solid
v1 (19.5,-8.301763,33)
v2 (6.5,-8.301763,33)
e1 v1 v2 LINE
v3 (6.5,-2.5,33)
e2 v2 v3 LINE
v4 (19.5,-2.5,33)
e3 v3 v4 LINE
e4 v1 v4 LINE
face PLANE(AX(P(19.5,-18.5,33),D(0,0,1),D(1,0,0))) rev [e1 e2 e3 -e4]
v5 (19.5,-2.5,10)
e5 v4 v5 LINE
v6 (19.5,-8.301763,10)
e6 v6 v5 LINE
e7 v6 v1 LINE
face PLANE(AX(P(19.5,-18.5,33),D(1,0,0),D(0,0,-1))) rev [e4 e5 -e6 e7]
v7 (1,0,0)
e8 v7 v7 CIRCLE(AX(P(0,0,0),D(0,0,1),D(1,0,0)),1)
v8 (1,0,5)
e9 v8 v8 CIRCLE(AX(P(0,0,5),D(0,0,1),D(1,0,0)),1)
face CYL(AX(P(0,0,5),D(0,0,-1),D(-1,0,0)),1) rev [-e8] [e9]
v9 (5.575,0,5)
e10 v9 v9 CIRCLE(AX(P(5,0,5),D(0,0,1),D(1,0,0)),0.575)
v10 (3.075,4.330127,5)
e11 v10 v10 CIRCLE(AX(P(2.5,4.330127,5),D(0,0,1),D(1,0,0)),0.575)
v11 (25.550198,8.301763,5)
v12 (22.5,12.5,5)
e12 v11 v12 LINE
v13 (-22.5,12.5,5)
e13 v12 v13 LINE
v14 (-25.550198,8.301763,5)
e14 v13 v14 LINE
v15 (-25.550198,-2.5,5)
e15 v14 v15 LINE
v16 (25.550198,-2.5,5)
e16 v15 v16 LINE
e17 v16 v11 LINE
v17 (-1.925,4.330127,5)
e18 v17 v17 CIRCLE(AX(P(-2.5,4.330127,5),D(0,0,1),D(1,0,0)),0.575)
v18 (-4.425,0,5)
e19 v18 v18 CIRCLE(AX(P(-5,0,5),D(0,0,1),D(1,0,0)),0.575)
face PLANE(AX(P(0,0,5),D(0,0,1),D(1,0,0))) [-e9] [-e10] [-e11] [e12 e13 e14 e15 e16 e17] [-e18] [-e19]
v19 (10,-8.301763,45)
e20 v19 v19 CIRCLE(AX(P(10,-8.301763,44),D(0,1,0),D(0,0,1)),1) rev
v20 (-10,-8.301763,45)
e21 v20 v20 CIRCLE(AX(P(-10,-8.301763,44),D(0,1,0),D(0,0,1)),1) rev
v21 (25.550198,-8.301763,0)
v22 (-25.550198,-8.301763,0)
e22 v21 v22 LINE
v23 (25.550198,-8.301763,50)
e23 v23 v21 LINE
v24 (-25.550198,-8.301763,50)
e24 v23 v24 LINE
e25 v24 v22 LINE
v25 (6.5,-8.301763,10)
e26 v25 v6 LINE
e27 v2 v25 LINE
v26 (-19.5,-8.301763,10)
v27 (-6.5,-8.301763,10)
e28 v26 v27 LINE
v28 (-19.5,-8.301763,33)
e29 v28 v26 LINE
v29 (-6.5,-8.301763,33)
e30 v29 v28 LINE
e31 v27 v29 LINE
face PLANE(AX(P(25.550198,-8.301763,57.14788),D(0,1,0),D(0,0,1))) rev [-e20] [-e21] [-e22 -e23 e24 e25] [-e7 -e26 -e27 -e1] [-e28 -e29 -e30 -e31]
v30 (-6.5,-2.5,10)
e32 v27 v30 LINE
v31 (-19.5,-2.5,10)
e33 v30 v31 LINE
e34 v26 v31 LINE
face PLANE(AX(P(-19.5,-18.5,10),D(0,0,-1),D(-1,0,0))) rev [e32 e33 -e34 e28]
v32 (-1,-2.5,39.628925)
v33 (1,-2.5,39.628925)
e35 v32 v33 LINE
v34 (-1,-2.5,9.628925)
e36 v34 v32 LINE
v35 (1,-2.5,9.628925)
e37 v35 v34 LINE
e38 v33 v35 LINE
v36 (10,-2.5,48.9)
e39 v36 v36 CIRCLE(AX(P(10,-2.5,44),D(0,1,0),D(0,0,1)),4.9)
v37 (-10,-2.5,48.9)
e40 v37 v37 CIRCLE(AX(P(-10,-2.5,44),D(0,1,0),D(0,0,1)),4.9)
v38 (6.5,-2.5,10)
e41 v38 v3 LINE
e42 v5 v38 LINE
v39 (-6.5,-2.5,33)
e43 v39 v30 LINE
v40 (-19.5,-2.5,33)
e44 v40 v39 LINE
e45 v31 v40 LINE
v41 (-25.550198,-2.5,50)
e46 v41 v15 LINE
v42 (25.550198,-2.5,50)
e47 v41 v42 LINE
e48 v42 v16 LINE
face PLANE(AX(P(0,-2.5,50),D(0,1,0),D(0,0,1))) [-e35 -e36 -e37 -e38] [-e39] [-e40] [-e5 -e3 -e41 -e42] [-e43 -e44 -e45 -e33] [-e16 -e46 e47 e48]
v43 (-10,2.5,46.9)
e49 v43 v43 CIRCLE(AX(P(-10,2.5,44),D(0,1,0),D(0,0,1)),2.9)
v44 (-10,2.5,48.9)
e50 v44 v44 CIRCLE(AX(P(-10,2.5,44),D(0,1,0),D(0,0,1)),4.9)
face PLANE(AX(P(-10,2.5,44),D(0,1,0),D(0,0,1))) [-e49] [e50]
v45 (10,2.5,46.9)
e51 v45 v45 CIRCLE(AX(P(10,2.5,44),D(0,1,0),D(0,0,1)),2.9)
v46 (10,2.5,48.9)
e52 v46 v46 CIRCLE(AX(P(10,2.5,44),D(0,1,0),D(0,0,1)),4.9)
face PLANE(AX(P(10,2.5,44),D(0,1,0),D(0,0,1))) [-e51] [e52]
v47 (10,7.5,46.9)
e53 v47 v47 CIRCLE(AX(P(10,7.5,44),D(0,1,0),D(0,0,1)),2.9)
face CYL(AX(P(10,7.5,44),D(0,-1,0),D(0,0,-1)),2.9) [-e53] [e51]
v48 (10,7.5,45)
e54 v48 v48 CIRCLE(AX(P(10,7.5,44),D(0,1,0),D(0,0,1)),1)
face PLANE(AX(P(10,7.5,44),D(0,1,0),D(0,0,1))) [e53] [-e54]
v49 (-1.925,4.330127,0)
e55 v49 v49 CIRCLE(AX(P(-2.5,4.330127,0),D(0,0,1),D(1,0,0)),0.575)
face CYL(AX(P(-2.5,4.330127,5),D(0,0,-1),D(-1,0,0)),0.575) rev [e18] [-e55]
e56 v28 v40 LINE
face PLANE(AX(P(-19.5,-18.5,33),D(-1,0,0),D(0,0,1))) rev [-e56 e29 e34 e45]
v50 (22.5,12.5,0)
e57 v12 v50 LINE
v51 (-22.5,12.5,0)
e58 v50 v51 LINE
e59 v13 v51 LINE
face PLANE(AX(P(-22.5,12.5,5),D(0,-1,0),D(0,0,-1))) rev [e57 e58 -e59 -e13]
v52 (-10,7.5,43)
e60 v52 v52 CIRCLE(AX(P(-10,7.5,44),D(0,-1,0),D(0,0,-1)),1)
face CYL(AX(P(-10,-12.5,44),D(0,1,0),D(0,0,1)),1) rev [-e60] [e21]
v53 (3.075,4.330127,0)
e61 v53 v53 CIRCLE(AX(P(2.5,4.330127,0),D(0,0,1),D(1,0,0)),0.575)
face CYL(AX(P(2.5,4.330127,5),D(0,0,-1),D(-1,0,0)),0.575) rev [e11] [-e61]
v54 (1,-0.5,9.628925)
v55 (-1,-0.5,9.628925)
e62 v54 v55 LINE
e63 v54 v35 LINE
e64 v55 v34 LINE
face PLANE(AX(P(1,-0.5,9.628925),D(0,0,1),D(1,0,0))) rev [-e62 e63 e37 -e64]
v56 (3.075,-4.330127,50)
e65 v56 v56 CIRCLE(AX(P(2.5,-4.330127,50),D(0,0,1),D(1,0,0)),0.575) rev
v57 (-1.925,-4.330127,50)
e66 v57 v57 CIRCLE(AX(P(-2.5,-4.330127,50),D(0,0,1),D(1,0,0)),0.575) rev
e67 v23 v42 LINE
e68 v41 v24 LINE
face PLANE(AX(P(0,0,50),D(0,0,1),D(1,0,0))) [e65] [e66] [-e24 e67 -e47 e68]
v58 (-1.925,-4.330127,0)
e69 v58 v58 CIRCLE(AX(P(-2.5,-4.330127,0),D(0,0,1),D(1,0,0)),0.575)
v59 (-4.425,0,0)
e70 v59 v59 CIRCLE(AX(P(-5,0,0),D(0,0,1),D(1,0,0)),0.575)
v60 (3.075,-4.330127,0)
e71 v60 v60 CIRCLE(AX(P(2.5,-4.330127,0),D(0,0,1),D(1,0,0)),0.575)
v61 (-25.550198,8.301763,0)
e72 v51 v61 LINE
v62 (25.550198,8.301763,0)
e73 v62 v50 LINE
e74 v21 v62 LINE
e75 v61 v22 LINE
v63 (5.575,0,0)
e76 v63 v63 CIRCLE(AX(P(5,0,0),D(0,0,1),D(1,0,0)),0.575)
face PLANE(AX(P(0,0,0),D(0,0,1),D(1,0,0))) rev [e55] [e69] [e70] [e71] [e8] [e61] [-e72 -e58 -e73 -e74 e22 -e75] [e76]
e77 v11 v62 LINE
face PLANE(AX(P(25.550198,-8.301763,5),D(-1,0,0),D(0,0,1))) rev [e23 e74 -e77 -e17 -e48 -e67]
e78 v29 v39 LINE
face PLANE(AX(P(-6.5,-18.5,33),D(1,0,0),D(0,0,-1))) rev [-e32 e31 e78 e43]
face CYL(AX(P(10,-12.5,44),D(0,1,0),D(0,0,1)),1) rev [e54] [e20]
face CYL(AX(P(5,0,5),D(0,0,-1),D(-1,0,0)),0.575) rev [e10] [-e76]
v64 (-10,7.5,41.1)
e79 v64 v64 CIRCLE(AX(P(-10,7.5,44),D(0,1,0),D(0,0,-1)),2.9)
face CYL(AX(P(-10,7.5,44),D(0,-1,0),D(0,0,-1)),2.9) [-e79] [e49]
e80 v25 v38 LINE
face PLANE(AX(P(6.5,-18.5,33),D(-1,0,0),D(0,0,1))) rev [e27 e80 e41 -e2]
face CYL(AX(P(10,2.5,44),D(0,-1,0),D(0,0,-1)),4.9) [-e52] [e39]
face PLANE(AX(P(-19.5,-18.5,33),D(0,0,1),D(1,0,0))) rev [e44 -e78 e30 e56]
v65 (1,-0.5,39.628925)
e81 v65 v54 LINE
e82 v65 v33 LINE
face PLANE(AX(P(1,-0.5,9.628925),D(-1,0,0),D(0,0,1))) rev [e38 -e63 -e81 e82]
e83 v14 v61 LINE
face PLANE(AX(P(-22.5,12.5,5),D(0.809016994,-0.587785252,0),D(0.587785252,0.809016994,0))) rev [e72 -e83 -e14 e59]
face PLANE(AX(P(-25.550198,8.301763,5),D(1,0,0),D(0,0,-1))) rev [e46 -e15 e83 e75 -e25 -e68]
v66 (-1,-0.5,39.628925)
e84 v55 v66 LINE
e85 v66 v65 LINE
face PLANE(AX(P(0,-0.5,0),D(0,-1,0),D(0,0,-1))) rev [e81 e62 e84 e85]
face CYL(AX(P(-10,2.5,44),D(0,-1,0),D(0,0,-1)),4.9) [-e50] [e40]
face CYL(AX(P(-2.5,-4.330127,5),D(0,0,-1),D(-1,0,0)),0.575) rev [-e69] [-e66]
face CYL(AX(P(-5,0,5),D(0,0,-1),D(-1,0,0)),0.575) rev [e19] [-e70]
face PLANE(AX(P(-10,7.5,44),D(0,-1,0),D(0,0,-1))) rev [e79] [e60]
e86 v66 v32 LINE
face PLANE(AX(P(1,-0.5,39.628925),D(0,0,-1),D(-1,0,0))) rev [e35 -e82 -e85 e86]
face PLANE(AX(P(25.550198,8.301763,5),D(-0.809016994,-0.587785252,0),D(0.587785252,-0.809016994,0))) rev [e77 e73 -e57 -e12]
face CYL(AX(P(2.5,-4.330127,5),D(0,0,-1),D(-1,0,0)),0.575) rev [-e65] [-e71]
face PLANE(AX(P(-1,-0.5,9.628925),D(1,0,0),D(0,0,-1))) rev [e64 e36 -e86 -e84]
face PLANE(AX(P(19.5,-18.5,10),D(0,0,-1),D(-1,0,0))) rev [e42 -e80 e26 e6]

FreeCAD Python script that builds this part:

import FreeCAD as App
import Part
import Sketcher

V = App.Vector
Q = App.Units.Quantity

doc = App.newDocument("Part")
body = doc.addObject("PartDesign::Body", "Body")

# Sketch on XY plane
sketch1 = body.newObject("Sketcher::SketchObject", "Sketch")
sketch1.AttachmentSupport = (doc.getObject("XY_Plane"), [""])
sketch1.MapMode = "FlatFace"
sketch1.addGeometry(Part.LineSegment(V(22.5, 12.5, 0), V(-22.5, 12.5, 0)), False)
sketch1.addGeometry(Part.LineSegment(V(-22.5, 12.5, 0), V(-25.6, 8.3, 0)), False)
sketch1.addGeometry(Part.LineSegment(V(-25.6, 8.3, 0), V(-25.6, -8.3, 0)), False)
sketch1.addGeometry(Part.LineSegment(V(-25.6, -8.3, 0), V(-22.5, -12.5, 0)), False)
sketch1.addGeometry(Part.LineSegment(V(-22.5, -12.5, 0), V(22.5, -12.5, 0)), False)
sketch1.addGeometry(Part.LineSegment(V(22.5, -12.5, 0), V(25.6, -8.3, 0)), False)
sketch1.addGeometry(Part.LineSegment(V(25.6, -8.3, 0), V(25.6, 8.3, 0)), False)
sketch1.addGeometry(Part.LineSegment(V(25.6, 8.3, 0), V(22.5, 12.5, 0)), False)
sketch1.addGeometry(Part.Circle(V(2.5, -4.3, 0), V(0, 0, 1), 0.6), False)
sketch1.addGeometry(Part.Circle(V(-2.5, -4.3, 0), V(0, 0, 1), 0.6), False)
sketch1.addGeometry(Part.Circle(V(5, 0, 0), V(0, 0, 1), 0.6), False)
sketch1.addGeometry(Part.Circle(V(2.5, 4.3, 0), V(0, 0, 1), 0.6), False)
sketch1.addGeometry(Part.Circle(V(0, 0, 0), V(0, 0, 1), 1), False)
sketch1.addGeometry(Part.Circle(V(-5, 0, 0), V(0, 0, 1), 0.6), False)
sketch1.addGeometry(Part.Circle(V(-2.5, 4.3, 0), V(0, 0, 1), 0.6), False)
sketch1.addConstraint(Sketcher.Constraint("Coincident", 0, 2, 1, 1))
sketch1.addConstraint(Sketcher.Constraint("Coincident", 1, 2, 2, 1))
sketch1.addConstraint(Sketcher.Constraint("Coincident", 2, 2, 3, 1))
sketch1.addConstraint(Sketcher.Constraint("Coincident", 3, 2, 4, 1))
sketch1.addConstraint(Sketcher.Constraint("Coincident", 4, 2, 5, 1))
sketch1.addConstraint(Sketcher.Constraint("Coincident", 5, 2, 6, 1))
sketch1.addConstraint(Sketcher.Constraint("Coincident", 6, 2, 7, 1))
sketch1.addConstraint(Sketcher.Constraint("Coincident", 7, 2, 0, 1))
sketch1.addConstraint(Sketcher.Constraint("Horizontal", 0))
sketch1.addConstraint(Sketcher.Constraint("Vertical", 2))
sketch1.addConstraint(Sketcher.Constraint("Horizontal", 4))
sketch1.addConstraint(Sketcher.Constraint("Vertical", 6))
sketch1.addConstraint(Sketcher.Constraint("Coincident", 12, 3, -1, 1))
sketch1.addConstraint(Sketcher.Constraint("Equal", 8, 9))
sketch1.addConstraint(Sketcher.Constraint("Equal", 9, 10))
sketch1.addConstraint(Sketcher.Constraint("Equal", 10, 11))
sketch1.addConstraint(Sketcher.Constraint("Equal", 11, 13))
sketch1.addConstraint(Sketcher.Constraint("Equal", 13, 14))
sketch1.addConstraint(Sketcher.Constraint("Symmetric", 9, 3, 11, 3, -1, 1))
sketch1.addConstraint(Sketcher.Constraint("Symmetric", 10, 3, 13, 3, -1, 1))
sketch1.addConstraint(Sketcher.Constraint("Symmetric", 8, 3, 14, 3, -1, 1))
sketch1.addConstraint(Sketcher.Constraint("Symmetric", 0, 2, 4, 2, -1, 1))
sketch1.addConstraint(Sketcher.Constraint("Symmetric", 1, 2, 5, 2, -1, 1))
sketch1.addConstraint(Sketcher.Constraint("Symmetric", 8, 3, 9, 3, -2))
sketch1.addConstraint(Sketcher.Constraint("PointOnObject", 10, 3, -1))
sketch1.addConstraint(Sketcher.Constraint("Parallel", 3, 7))
sketch1.addConstraint(Sketcher.Constraint("Horizontal", 2, 2, 5, 2))
sketch1.addConstraint(Sketcher.Constraint("Horizontal", 1, 2, 6, 2))
sketch1.addConstraint(Sketcher.Constraint("Vertical", 0, 2, 3, 2))
sketch1.addConstraint(Sketcher.Constraint("Diameter", 12, Q("2 mm")))
sketch1.addConstraint(Sketcher.Constraint("Diameter", 8, Q("1.15 mm")))
sketch1.addConstraint(Sketcher.Constraint("DistanceX", 0, 2, 0, 1, Q("45 mm")))
sketch1.addConstraint(Sketcher.Constraint("Angle", 1, Q("-126 deg")))
sketch1.addConstraint(Sketcher.Constraint("DistanceX", -1, 1, 10, 3, Q("5 mm")))
sketch1.addConstraint(Sketcher.Constraint("DistanceX", 9, 3, 8, 3, Q("5 mm")))
sketch1.addConstraint(Sketcher.Constraint("DistanceY", 3, 2, 0, 2, Q("25 mm")))
sketch1.addConstraint(Sketcher.Constraint("DistanceX", 1, 2, -1, 1, Q("25.550198 mm")))
sketch1.addConstraint(Sketcher.Constraint("DistanceY", 9, 3, 1, 2, Q("12.63189 mm")))
pad1 = body.newObject("PartDesign::Pad", "Pad")
pad1.Profile = sketch1
pad1.Length = 5

# Sketch on XY plane
sketch2 = body.newObject("Sketcher::SketchObject", "Sketch001")
sketch2.AttachmentSupport = (doc.getObject("XY_Plane"), [""])
sketch2.MapMode = "FlatFace"
sketch2.AttachmentOffset = App.Placement(V(0, 0, 5), App.Rotation())
sketch2.addGeometry(Part.LineSegment(V(25.6, -2.5, 0), V(-25.6, -2.5, 0)), False)
sketch2.addGeometry(Part.LineSegment(V(-25.6, -2.5, 0), V(-25.6, -8.3, 0)), False)
sketch2.addGeometry(Part.LineSegment(V(-25.6, -8.3, 0), V(-22.5, -12.5, 0)), False)
sketch2.addGeometry(Part.LineSegment(V(-22.5, -12.5, 0), V(22.5, -12.5, 0)), False)
sketch2.addGeometry(Part.LineSegment(V(22.5, -12.5, 0), V(25.6, -8.3, 0)), False)
sketch2.addGeometry(Part.LineSegment(V(25.6, -8.3, 0), V(25.6, -2.5, 0)), False)
sketch2.addGeometry(Part.Circle(V(-2.5, -4.3, 0), V(0, 0, 1), 0.6), False)
sketch2.addGeometry(Part.Circle(V(2.5, -4.3, 0), V(0, 0, 1), 0.6), False)
sketch2.addConstraint(Sketcher.Constraint("Coincident", 0, 2, 1, 1))
sketch2.addConstraint(Sketcher.Constraint("Coincident", 1, 2, 2, 1))
sketch2.addConstraint(Sketcher.Constraint("Coincident", 2, 2, 3, 1))
sketch2.addConstraint(Sketcher.Constraint("Coincident", 3, 2, 4, 1))
sketch2.addConstraint(Sketcher.Constraint("Coincident", 4, 2, 5, 1))
sketch2.addConstraint(Sketcher.Constraint("Coincident", 5, 2, 0, 1))
sketch2.addConstraint(Sketcher.Constraint("Horizontal", 0))
sketch2.addConstraint(Sketcher.Constraint("Vertical", 1))
sketch2.addConstraint(Sketcher.Constraint("Horizontal", 3))
sketch2.addConstraint(Sketcher.Constraint("Vertical", 5))
sketch2.addConstraint(Sketcher.Constraint("Equal", 6, 7))
sketch2.addConstraint(Sketcher.Constraint("Symmetric", 6, 3, 7, 3, -2))
sketch2.addConstraint(Sketcher.Constraint("Symmetric", 1, 2, 4, 2, -2))
sketch2.addConstraint(Sketcher.Constraint("Equal", 2, 4))
sketch2.addConstraint(Sketcher.Constraint("Diameter", 6, Q("1.15 mm")))
sketch2.addConstraint(Sketcher.Constraint("DistanceX", 3, 1, 3, 2, Q("45 mm")))
sketch2.addConstraint(Sketcher.Constraint("Angle", 2, Q("-54 deg")))
sketch2.addConstraint(Sketcher.Constraint("DistanceX", 6, 3, 7, 3, Q("5 mm")))
sketch2.addConstraint(Sketcher.Constraint("DistanceY", 2, 2, 0, 2, Q("10 mm")))
sketch2.addConstraint(Sketcher.Constraint("DistanceY", 0, 2, -1, 1, Q("2.5 mm")))
sketch2.addConstraint(Sketcher.Constraint("DistanceX", 0, 2, -1, 1, Q("25.550198 mm")))
sketch2.addConstraint(Sketcher.Constraint("DistanceY", 6, 3, -1, 1, Q("4.330127 mm")))
pad2 = body.newObject("PartDesign::Pad", "Pad001")
pad2.Profile = sketch2
pad2.Length = 45

# Sketch on XZ plane
sketch3 = body.newObject("Sketcher::SketchObject", "Sketch002")
sketch3.AttachmentSupport = (doc.getObject("XZ_Plane"), [""])
sketch3.MapMode = "FlatFace"
sketch3.AttachmentOffset = App.Placement(V(0, 0, 2.5), App.Rotation())
sketch3.addGeometry(Part.LineSegment(V(-1, 9.6, 0), V(-1, 39.6, 0)), False)
sketch3.addGeometry(Part.LineSegment(V(-1, 39.6, 0), V(1, 39.6, 0)), False)
sketch3.addGeometry(Part.LineSegment(V(1, 39.6, 0), V(1, 9.6, 0)), False)
sketch3.addGeometry(Part.LineSegment(V(1, 9.6, 0), V(-1, 9.6, 0)), False)
sketch3.addConstraint(Sketcher.Constraint("Coincident", 0, 2, 1, 1))
sketch3.addConstraint(Sketcher.Constraint("Coincident", 1, 2, 2, 1))
sketch3.addConstraint(Sketcher.Constraint("Coincident", 2, 2, 3, 1))
sketch3.addConstraint(Sketcher.Constraint("Coincident", 3, 2, 0, 1))
sketch3.addConstraint(Sketcher.Constraint("Vertical", 0))
sketch3.addConstraint(Sketcher.Constraint("Horizontal", 1))
sketch3.addConstraint(Sketcher.Constraint("Vertical", 2))
sketch3.addConstraint(Sketcher.Constraint("Horizontal", 3))
sketch3.addConstraint(Sketcher.Constraint("DistanceX", 1, 1, 1, 2, Q("2 mm")))
sketch3.addConstraint(Sketcher.Constraint("DistanceY", 0, 1, 0, 2, Q("30 mm")))
sketch3.addConstraint(Sketcher.Constraint("DistanceX", 0, 2, -1, 1, Q("1 mm")))
sketch3.addConstraint(Sketcher.Constraint("DistanceY", -1, 1, 0, 2, Q("39.628925 mm")))
pad3 = body.newObject("PartDesign::Pad", "Pad002")
pad3.Profile = sketch3
pad3.Length = 2
pad3.Reversed = True

# Sketch on XZ plane
sketch4 = body.newObject("Sketcher::SketchObject", "Sketch003")
sketch4.AttachmentSupport = (doc.getObject("XZ_Plane"), [""])
sketch4.MapMode = "FlatFace"
sketch4.AttachmentOffset = App.Placement(V(0, 0, 2.5), App.Rotation())
sketch4.addGeometry(Part.LineSegment(V(6, 10, 0), V(6, 33, 0)), False)
sketch4.addGeometry(Part.LineSegment(V(6, 33, 0), V(20, 33, 0)), False)
sketch4.addGeometry(Part.LineSegment(V(20, 33, 0), V(20, 10, 0)), False)
sketch4.addGeometry(Part.LineSegment(V(20, 10, 0), V(6, 10, 0)), False)
sketch4.addGeometry(Part.LineSegment(V(-20, 10, 0), V(-20, 33, 0)), False)
sketch4.addGeometry(Part.LineSegment(V(-20, 33, 0), V(-6, 33, 0)), False)
sketch4.addGeometry(Part.LineSegment(V(-6, 33, 0), V(-6, 10, 0)), False)
sketch4.addGeometry(Part.LineSegment(V(-6, 10, 0), V(-20, 10, 0)), False)
sketch4.addConstraint(Sketcher.Constraint("Coincident", 0, 2, 1, 1))
sketch4.addConstraint(Sketcher.Constraint("Coincident", 1, 2, 2, 1))
sketch4.addConstraint(Sketcher.Constraint("Coincident", 2, 2, 3, 1))
sketch4.addConstraint(Sketcher.Constraint("Coincident", 3, 2, 0, 1))
sketch4.addConstraint(Sketcher.Constraint("Coincident", 4, 2, 5, 1))
sketch4.addConstraint(Sketcher.Constraint("Coincident", 5, 2, 6, 1))
sketch4.addConstraint(Sketcher.Constraint("Coincident", 6, 2, 7, 1))
sketch4.addConstraint(Sketcher.Constraint("Coincident", 7, 2, 4, 1))
sketch4.addConstraint(Sketcher.Constraint("Vertical", 0))
sketch4.addConstraint(Sketcher.Constraint("Horizontal", 1))
sketch4.addConstraint(Sketcher.Constraint("Vertical", 2))
sketch4.addConstraint(Sketcher.Constraint("Horizontal", 3))
sketch4.addConstraint(Sketcher.Constraint("Vertical", 4))
sketch4.addConstraint(Sketcher.Constraint("Horizontal", 5))
sketch4.addConstraint(Sketcher.Constraint("Vertical", 6))
sketch4.addConstraint(Sketcher.Constraint("Horizontal", 7))
sketch4.addConstraint(Sketcher.Constraint("Symmetric", 1, 2, 4, 2, -2))
sketch4.addConstraint(Sketcher.Constraint("Symmetric", 3, 2, 6, 2, -2))
sketch4.addConstraint(Sketcher.Constraint("DistanceX", 1, 1, 1, 2, Q("13 mm")))
sketch4.addConstraint(Sketcher.Constraint("DistanceY", 0, 1, 0, 2, Q("23 mm")))
sketch4.addConstraint(Sketcher.Constraint("DistanceY", -1, 1, 0, 2, Q("33 mm")))
sketch4.addConstraint(Sketcher.Constraint("DistanceX", 4, 2, 0, 2, Q("26 mm")))
pocket1 = body.newObject("PartDesign::Pocket", "Pocket")
pocket1.Profile = sketch4
pocket1.Length = 16
pocket1.Reversed = True

# Sketch on XZ plane
sketch5 = body.newObject("Sketcher::SketchObject", "Sketch004")
sketch5.AttachmentSupport = (doc.getObject("XZ_Plane"), [""])
sketch5.MapMode = "FlatFace"
sketch5.AttachmentOffset = App.Placement(V(0, 0, 2.5), App.Rotation())
sketch5.addGeometry(Part.Circle(V(10, 44, 0), V(0, 0, 1), 2.9), False)
sketch5.addGeometry(Part.Circle(V(-10, 44, 0), V(0, 0, 1), 2.9), False)
sketch5.addConstraint(Sketcher.Constraint("Equal", 0, 1))
sketch5.addConstraint(Sketcher.Constraint("Symmetric", 0, 3, 1, 3, -2))
sketch5.addConstraint(Sketcher.Constraint("Diameter", 0, Q("5.8 mm")))
sketch5.addConstraint(Sketcher.Constraint("DistanceX", -1, 1, 0, 3, Q("10 mm")))
sketch5.addConstraint(Sketcher.Constraint("DistanceY", -1, 1, 0, 3, Q("44 mm")))
pad4 = body.newObject("PartDesign::Pad", "Pad003")
pad4.Profile = sketch5
pad4.Length = 10
pad4.Reversed = True

# Sketch on XZ plane
sketch6 = body.newObject("Sketcher::SketchObject", "Sketch005")
sketch6.AttachmentSupport = (doc.getObject("XZ_Plane"), [""])
sketch6.MapMode = "FlatFace"
sketch6.AttachmentOffset = App.Placement(V(0, 0, -7.5), App.Rotation())
sketch6.addGeometry(Part.Circle(V(10, 44, 0), V(0, 0, 1), 1), False)
sketch6.addGeometry(Part.Circle(V(-10, 44, 0), V(0, 0, 1), 1), False)
sketch6.addConstraint(Sketcher.Constraint("Equal", 0, 1))
sketch6.addConstraint(Sketcher.Constraint("Symmetric", 0, 3, 1, 3, -2))
sketch6.addConstraint(Sketcher.Constraint("Diameter", 0, Q("2 mm")))
sketch6.addConstraint(Sketcher.Constraint("DistanceX", -1, 1, 0, 3, Q("10 mm")))
sketch6.addConstraint(Sketcher.Constraint("DistanceY", -1, 1, 0, 3, Q("44 mm")))
pocket2 = body.newObject("PartDesign::Pocket", "Pocket001")
pocket2.Profile = sketch6
pocket2.Type = "ThroughAll"
pocket2.Midplane = True

# Sketch on XZ plane
sketch7 = body.newObject("Sketcher::SketchObject", "Sketch006")
sketch7.AttachmentSupport = (doc.getObject("XZ_Plane"), [""])
sketch7.MapMode = "FlatFace"
sketch7.AttachmentOffset = App.Placement(V(0, 0, 2.5), App.Rotation())
sketch7.addGeometry(Part.Circle(V(-10, 44, 0), V(0, 0, 1), 4.9), False)
sketch7.addGeometry(Part.Circle(V(-10, 44, 0), V(0, 0, 1), 2.9), False)
sketch7.addGeometry(Part.Circle(V(10, 44, 0), V(0, 0, 1), 4.9), False)
sketch7.addGeometry(Part.Circle(V(10, 44, 0), V(0, 0, 1), 2.9), False)
sketch7.addConstraint(Sketcher.Constraint("Coincident", 1, 3, 0, 3))
sketch7.addConstraint(Sketcher.Constraint("Coincident", 3, 3, 2, 3))
sketch7.addConstraint(Sketcher.Constraint("Equal", 0, 2))
sketch7.addConstraint(Sketcher.Constraint("Equal", 1, 3))
sketch7.addConstraint(Sketcher.Constraint("Symmetric", 0, 3, 2, 3, -2))
sketch7.addConstraint(Sketcher.Constraint("Diameter", 0, Q("9.8 mm")))
sketch7.addConstraint(Sketcher.Constraint("Diameter", 1, Q("5.8 mm")))
sketch7.addConstraint(Sketcher.Constraint("DistanceX", 0, 3, -1, 1, Q("10 mm")))
sketch7.addConstraint(Sketcher.Constraint("DistanceY", -1, 1, 0, 3, Q("44 mm")))
pad5 = body.newObject("PartDesign::Pad", "Pad004")
pad5.Profile = sketch7
pad5.Length = 5
pad5.Reversed = True

# Sketch on YZ plane
sketch8 = body.newObject("Sketcher::SketchObject", "Sketch007")
sketch8.AttachmentSupport = (doc.getObject("YZ_Plane"), [""])
sketch8.MapMode = "FlatFace"
sketch8.AttachmentOffset = App.Placement(V(0, 0, -25.550198), App.Rotation())
sketch8.addGeometry(Part.LineSegment(V(-8, 0, 0), V(-12, -5, 0)), False)
sketch8.addGeometry(Part.LineSegment(V(-12, -5, 0), V(-21, 12, 0)), False)
sketch8.addGeometry(Part.LineSegment(V(-21, 12, 0), V(-18, 51, 0)), False)
sketch8.addGeometry(Part.LineSegment(V(-18, 51, 0), V(-8, 57, 0)), False)
sketch8.addGeometry(Part.LineSegment(V(-8, 57, 0), V(-8, 0, 0)), False)
sketch8.addConstraint(Sketcher.Constraint("Coincident", 0, 2, 1, 1))
sketch8.addConstraint(Sketcher.Constraint("Coincident", 1, 2, 2, 1))
sketch8.addConstraint(Sketcher.Constraint("Coincident", 2, 2, 3, 1))
sketch8.addConstraint(Sketcher.Constraint("Coincident", 3, 2, 4, 1))
sketch8.addConstraint(Sketcher.Constraint("Coincident", 4, 2, 0, 1))
sketch8.addConstraint(Sketcher.Constraint("Vertical", 4))
sketch8.addConstraint(Sketcher.Constraint("PointOnObject", 4, 2, -1))
sketch8.addConstraint(Sketcher.Constraint("DistanceY", 4, 2, 4, 1, Q("57.14788 mm")))
sketch8.addConstraint(Sketcher.Constraint("DistanceY", -1, 1, 2, 2, Q("51.1434 mm")))
sketch8.addConstraint(Sketcher.Constraint("DistanceX", 2, 2, 3, 2, Q("9.525698 mm")))
sketch8.addConstraint(Sketcher.Constraint("Distance", 2, Q("38.937561 mm")))
sketch8.addConstraint(Sketcher.Constraint("DistanceY", 0, 2, -1, 1, Q("5.234949 mm")))
sketch8.addConstraint(Sketcher.Constraint("DistanceY", -1, 1, 1, 2, Q("12.300259 mm")))
sketch8.addConstraint(Sketcher.Constraint("DistanceX", 2, 2, -1, 1, Q("17.827461 mm")))
sketch8.addConstraint(Sketcher.Constraint("DistanceX", 1, 2, 0, 2, Q("8.289371 mm")))
pocket3 = body.newObject("PartDesign::Pocket", "Pocket002")
pocket3.Profile = sketch8
pocket3.Type = "ThroughAll"
pocket3.Midplane = True

doc.recompute()
